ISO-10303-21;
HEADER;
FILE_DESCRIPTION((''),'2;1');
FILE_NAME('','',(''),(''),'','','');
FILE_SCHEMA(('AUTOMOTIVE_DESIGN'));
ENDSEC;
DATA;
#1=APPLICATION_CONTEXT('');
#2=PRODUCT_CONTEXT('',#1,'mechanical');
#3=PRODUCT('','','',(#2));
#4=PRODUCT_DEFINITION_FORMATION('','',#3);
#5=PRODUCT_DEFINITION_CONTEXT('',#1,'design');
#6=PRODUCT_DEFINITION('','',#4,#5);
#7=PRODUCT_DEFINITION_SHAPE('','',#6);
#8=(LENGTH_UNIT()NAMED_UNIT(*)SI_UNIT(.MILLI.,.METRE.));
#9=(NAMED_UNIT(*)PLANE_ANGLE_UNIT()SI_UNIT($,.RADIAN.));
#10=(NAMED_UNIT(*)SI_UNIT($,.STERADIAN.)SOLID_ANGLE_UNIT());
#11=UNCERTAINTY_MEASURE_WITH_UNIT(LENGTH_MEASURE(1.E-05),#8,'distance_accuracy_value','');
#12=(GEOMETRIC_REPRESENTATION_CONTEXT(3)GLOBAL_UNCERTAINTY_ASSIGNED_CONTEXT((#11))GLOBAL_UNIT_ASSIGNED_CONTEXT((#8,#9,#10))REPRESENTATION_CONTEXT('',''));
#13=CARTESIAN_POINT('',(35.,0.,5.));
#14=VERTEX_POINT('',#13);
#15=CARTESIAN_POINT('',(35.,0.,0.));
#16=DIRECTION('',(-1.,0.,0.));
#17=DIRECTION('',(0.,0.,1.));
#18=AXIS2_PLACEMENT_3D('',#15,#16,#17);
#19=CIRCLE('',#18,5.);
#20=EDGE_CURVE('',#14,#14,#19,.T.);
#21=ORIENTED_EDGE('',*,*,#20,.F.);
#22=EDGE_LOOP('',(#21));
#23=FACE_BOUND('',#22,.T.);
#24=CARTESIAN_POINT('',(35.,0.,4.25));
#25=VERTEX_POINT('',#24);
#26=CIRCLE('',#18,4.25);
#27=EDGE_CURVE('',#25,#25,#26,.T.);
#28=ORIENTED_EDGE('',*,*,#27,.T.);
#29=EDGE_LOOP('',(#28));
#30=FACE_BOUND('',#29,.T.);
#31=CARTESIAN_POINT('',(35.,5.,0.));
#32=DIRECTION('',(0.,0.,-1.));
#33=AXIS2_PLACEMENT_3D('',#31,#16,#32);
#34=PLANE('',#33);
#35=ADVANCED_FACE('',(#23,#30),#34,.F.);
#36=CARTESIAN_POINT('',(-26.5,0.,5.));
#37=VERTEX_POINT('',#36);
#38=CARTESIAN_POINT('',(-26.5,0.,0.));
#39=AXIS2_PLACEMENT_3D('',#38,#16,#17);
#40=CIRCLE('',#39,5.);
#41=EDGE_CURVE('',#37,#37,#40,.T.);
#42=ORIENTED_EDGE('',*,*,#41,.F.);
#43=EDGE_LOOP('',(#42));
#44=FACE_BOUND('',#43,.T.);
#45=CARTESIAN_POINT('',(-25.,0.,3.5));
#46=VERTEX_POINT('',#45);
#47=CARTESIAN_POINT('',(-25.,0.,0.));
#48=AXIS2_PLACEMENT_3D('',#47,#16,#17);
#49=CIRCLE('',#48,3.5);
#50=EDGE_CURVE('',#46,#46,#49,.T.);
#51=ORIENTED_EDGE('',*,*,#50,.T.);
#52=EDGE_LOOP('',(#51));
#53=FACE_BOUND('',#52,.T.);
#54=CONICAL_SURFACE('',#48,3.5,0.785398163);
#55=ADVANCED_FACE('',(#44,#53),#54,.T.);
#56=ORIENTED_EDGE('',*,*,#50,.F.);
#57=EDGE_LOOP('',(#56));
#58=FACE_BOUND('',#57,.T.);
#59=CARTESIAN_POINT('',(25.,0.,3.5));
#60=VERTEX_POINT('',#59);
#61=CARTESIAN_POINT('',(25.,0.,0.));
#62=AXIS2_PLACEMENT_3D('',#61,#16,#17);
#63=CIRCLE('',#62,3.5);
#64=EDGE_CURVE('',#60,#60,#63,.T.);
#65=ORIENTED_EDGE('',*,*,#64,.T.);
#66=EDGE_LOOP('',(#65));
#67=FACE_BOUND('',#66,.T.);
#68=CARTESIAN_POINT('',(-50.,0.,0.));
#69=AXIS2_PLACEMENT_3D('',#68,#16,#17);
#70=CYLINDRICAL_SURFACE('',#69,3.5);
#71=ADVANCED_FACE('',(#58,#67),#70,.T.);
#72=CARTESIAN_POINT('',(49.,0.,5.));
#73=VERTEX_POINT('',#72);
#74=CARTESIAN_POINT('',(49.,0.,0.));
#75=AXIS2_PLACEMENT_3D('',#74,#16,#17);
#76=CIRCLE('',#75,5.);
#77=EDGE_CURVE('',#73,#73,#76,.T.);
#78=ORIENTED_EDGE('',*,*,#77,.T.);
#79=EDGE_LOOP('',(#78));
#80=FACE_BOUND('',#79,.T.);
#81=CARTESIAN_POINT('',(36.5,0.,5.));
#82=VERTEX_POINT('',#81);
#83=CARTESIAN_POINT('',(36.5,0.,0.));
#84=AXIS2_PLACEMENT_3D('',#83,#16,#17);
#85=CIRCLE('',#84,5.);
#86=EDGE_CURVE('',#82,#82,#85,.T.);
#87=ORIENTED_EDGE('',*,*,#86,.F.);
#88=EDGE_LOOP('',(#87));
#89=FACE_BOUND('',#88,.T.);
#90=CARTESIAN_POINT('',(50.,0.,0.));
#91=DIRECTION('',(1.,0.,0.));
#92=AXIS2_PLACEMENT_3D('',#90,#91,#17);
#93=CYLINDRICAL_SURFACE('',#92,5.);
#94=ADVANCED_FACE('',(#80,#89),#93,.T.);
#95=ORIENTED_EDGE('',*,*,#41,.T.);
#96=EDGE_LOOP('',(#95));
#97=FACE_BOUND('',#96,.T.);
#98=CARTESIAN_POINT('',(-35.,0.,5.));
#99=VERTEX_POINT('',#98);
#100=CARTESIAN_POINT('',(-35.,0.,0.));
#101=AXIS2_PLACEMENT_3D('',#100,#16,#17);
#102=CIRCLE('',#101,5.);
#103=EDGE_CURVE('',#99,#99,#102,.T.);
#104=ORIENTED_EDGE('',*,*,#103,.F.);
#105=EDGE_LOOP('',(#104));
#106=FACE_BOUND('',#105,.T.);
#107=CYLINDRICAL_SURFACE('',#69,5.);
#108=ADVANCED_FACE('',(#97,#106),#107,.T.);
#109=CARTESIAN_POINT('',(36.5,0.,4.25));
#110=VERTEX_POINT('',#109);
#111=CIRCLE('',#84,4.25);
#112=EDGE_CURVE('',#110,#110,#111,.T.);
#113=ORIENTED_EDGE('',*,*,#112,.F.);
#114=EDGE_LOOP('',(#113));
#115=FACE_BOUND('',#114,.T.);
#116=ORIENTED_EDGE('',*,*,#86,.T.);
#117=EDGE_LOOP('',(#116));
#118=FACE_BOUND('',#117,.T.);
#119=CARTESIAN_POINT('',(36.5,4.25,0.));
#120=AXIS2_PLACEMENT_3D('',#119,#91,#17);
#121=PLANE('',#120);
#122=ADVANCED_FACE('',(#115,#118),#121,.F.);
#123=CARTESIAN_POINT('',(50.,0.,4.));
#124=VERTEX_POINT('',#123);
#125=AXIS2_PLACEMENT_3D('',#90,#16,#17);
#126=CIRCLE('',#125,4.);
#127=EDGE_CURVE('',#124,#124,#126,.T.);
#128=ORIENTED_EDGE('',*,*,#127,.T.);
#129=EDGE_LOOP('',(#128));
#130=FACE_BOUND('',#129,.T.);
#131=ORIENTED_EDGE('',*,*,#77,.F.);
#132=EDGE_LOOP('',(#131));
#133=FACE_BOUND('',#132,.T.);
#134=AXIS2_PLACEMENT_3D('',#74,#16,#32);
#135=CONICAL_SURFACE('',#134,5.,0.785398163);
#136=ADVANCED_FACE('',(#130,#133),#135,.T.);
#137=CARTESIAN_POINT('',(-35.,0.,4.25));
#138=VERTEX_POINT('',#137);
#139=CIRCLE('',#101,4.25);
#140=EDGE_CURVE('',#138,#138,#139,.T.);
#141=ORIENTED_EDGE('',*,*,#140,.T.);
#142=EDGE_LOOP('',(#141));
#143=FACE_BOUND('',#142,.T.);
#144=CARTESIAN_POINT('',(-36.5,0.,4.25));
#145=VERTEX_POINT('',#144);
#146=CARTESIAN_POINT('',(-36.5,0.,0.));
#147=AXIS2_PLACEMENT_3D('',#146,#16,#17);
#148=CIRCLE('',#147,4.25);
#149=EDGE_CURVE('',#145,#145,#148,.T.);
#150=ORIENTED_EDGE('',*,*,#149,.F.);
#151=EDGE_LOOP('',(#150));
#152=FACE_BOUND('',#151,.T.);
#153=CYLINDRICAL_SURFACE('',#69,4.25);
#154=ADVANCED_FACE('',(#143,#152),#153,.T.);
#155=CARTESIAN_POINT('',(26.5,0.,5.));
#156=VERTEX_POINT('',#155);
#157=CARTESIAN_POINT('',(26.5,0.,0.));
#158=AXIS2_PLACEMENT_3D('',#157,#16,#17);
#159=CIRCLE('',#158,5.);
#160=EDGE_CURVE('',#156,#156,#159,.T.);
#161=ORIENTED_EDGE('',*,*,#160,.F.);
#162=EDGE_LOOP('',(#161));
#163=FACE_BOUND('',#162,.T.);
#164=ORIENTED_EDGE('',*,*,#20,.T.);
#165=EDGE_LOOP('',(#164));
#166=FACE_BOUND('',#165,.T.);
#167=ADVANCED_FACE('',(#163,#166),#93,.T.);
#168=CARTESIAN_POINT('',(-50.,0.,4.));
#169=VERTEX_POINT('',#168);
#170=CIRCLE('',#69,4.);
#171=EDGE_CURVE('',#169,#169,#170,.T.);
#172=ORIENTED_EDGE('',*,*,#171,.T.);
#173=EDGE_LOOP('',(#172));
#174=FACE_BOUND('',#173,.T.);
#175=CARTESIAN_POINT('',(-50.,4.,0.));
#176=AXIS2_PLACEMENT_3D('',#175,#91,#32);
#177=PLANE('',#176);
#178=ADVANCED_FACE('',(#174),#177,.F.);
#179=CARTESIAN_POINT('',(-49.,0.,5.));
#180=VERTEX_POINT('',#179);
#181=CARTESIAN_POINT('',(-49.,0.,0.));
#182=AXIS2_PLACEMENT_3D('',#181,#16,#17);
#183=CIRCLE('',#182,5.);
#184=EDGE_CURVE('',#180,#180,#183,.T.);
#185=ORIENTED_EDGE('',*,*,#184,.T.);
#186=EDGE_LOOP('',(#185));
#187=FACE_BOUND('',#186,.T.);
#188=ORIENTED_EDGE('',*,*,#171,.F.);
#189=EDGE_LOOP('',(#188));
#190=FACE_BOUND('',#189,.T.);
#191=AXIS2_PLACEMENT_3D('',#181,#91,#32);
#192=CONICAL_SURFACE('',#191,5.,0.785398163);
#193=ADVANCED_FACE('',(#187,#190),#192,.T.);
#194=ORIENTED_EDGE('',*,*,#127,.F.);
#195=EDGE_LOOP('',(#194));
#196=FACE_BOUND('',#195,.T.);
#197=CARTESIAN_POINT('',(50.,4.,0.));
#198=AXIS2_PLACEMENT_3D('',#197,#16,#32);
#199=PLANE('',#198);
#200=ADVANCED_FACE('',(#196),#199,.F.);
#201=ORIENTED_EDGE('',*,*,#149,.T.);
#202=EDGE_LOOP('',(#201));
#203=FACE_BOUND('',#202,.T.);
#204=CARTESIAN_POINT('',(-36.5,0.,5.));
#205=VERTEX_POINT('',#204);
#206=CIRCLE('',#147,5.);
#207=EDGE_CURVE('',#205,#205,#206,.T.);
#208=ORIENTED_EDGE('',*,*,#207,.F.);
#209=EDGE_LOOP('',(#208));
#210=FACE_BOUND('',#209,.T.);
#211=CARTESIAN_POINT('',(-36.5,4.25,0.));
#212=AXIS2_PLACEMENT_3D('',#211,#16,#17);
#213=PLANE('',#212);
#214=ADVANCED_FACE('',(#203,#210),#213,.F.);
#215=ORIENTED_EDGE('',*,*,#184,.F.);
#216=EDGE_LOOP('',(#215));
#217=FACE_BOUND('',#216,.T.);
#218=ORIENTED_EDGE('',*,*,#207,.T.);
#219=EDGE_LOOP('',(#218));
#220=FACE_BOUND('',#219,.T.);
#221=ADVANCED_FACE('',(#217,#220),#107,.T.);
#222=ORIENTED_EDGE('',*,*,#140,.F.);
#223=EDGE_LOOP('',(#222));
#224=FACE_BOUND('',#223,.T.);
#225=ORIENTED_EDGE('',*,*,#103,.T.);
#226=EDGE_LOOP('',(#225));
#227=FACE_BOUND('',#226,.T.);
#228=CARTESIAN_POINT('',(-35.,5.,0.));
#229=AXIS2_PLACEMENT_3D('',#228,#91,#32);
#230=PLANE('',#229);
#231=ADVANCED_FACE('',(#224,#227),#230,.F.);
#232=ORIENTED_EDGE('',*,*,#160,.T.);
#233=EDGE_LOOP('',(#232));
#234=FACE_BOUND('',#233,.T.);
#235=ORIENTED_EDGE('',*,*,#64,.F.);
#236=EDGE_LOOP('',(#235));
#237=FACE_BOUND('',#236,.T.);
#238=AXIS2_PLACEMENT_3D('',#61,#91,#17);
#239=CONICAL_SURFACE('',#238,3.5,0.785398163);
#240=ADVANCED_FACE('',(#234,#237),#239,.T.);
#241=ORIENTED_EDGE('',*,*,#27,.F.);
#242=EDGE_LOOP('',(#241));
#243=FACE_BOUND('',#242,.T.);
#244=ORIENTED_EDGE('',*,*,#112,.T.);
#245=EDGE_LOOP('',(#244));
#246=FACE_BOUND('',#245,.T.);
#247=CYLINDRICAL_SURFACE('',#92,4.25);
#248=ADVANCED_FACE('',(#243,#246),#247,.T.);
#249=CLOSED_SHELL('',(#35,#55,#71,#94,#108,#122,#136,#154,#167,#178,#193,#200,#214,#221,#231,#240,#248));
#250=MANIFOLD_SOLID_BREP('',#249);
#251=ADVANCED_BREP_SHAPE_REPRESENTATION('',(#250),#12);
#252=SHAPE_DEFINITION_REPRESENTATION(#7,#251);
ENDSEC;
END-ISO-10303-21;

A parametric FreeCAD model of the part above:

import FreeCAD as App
import Part
import Sketcher
Q = App.Units.Quantity


def add_polygon(sketch, points):
    """Adds a closed chain of lines whose ends are joined by coincident constraints."""
    first, n = sketch.GeometryCount, len(points)
    for a, b in zip(points, points[1:] + points[:1]):
        sketch.addGeometry(Part.LineSegment(App.Vector(*a, 0), App.Vector(*b, 0)), False)
    for i in range(n):
        sketch.addConstraint(Sketcher.Constraint("Coincident", first + i, 2, first + (i + 1) % n, 1))

doc = App.newDocument("Part")
body = doc.addObject("PartDesign::Body", "Body")

# Sketch on XY plane
sketch1 = body.newObject("Sketcher::SketchObject", "Sketch")
sketch1.AttachmentSupport = (doc.getObject("XY_Plane"), [""])
sketch1.MapMode = "FlatFace"
add_polygon(sketch1, [(0, 0), (0, 3.5), (-25, 3.5), (-26.5, 5), (-35, 5), (-35, 4.2), (-36.5, 4.2), (-36.5, 5), (-49, 5), (-50, 4), (-50, 0)])  # lines 0-10
sketch1.addConstraint([
    Sketcher.Constraint("Vertical", 0),
    Sketcher.Constraint("Horizontal", 1),
    Sketcher.Constraint("Horizontal", 3),
    Sketcher.Constraint("Vertical", 4),
    Sketcher.Constraint("Horizontal", 5),
    Sketcher.Constraint("Vertical", 6),
    Sketcher.Constraint("Horizontal", 7),
    Sketcher.Constraint("Vertical", 9),
    Sketcher.Constraint("Horizontal", 10),
    Sketcher.Constraint("Coincident", 10, 2, -1, 1),
    Sketcher.Constraint("Perpendicular", 2, 8),
    Sketcher.Constraint("Horizontal", 3, 2, 6, 2),
    Sketcher.Constraint("DistanceX", 1, 2, 1, 1, 25.0),
    Sketcher.Constraint("DistanceX", 10, 1, 10, 2, 50.0),
    Sketcher.Constraint("DistanceY", 9, 2, 9, 1, 4.0),
    Sketcher.Constraint("Angle", 2, Q("135 deg")),
    Sketcher.Constraint("DistanceX", 3, 2, 3, 1, 8.5),
    Sketcher.Constraint("DistanceX", 5, 2, 5, 1, 1.5),
    Sketcher.Constraint("DistanceX", 7, 2, 7, 1, 12.5),
    Sketcher.Constraint("DistanceY", 0, 1, 0, 2, 3.5),
    Sketcher.Constraint("DistanceY", 4, 2, 4, 1, 0.75),
])
revolution = body.newObject("PartDesign::Revolution", "Revolution")
revolution.Profile = sketch1
revolution.ReferenceAxis = (sketch1, ["H_Axis"])
revolution.Angle = 360
doc.recompute()

mirrored = body.newObject("PartDesign::Mirrored", "Mirrored")
mirrored.Originals = [revolution]
mirrored.MirrorPlane = (doc.getObject("YZ_Plane"), [""])
body.Tip = mirrored

doc.recompute()
